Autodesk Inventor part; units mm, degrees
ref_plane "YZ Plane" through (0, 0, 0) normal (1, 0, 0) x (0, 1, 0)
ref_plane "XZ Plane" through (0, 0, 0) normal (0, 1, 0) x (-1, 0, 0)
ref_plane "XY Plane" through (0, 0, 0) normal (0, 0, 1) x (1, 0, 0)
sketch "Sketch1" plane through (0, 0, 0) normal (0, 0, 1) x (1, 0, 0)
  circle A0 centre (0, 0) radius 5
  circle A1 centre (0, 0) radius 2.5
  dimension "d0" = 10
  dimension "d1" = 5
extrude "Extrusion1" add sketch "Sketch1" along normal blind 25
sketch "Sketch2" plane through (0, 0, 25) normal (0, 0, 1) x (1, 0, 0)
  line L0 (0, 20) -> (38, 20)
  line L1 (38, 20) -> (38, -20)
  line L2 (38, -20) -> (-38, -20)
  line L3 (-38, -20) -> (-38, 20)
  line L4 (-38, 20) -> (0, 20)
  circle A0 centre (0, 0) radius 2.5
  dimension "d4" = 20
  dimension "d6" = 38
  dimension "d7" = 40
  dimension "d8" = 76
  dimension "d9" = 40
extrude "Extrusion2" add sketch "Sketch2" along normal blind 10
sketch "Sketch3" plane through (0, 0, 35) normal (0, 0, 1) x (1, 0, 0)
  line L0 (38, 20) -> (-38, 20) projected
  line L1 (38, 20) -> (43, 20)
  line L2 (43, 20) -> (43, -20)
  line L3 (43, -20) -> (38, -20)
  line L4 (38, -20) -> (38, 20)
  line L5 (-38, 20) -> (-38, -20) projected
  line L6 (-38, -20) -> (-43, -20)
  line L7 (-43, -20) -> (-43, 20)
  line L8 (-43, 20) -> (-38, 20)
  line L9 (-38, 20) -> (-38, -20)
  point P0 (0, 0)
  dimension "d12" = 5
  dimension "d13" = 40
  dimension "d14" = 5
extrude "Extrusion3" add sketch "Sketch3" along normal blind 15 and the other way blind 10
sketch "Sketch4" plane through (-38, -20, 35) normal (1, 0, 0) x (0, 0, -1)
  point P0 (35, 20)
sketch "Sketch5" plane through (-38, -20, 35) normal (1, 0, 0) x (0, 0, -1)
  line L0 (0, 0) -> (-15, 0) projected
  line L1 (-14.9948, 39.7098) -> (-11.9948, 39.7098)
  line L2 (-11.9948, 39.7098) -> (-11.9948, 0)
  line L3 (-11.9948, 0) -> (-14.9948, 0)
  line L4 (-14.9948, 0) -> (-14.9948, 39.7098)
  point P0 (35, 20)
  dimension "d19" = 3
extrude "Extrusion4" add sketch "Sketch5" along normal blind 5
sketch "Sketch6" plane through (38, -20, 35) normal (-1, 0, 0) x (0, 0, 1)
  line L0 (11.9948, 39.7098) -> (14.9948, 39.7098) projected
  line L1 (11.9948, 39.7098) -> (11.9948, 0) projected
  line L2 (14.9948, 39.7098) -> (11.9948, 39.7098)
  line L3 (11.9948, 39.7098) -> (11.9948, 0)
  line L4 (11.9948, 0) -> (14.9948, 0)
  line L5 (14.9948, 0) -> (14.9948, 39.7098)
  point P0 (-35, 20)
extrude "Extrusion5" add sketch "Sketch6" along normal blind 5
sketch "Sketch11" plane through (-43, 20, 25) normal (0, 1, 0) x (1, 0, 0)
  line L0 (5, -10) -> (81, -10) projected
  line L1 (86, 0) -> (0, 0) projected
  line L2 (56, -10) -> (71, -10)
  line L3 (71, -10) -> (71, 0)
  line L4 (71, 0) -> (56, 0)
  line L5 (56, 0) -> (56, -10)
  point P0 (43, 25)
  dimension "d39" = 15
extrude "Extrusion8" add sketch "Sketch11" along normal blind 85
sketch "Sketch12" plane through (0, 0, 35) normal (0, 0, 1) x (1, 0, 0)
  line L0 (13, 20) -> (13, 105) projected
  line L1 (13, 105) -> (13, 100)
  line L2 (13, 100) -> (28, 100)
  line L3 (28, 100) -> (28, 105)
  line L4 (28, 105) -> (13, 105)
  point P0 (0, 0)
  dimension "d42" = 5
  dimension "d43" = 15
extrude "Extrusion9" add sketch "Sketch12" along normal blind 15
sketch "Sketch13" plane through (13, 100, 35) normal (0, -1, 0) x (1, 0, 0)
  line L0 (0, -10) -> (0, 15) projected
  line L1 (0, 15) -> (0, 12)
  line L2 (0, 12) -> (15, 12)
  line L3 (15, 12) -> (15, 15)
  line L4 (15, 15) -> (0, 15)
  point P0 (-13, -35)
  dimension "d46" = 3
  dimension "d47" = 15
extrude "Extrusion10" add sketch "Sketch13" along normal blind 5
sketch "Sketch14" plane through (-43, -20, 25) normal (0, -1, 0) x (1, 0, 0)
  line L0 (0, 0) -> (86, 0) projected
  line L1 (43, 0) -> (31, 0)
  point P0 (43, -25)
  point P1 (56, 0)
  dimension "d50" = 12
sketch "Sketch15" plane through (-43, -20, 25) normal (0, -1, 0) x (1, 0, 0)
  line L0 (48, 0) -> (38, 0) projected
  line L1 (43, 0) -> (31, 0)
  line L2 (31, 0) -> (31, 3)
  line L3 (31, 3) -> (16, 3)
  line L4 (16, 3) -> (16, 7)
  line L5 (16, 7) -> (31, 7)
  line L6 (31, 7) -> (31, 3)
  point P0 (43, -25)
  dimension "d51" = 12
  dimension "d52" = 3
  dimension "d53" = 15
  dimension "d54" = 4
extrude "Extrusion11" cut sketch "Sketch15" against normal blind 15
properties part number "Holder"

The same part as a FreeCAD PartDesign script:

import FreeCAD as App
import Part
import Sketcher


def add_polygon(sketch, points):
    """Adds a closed chain of lines whose ends are joined by coincident constraints."""
    first, n = sketch.GeometryCount, len(points)
    for a, b in zip(points, points[1:] + points[:1]):
        sketch.addGeometry(Part.LineSegment(App.Vector(*a, 0), App.Vector(*b, 0)), False)
    for i in range(n):
        sketch.addConstraint(Sketcher.Constraint("Coincident", first + i, 2, first + (i + 1) % n, 1))

doc = App.newDocument("Part")
params = doc.addObject("Spreadsheet::Sheet", "Params")
for row, (alias, value) in enumerate([
    ("sketch1_diameter", "10 mm"),
    ("sketch1_diameter2", "5 mm"),
    ("pad1_length", "25 mm"),
    ("sketch2_width", "76 mm"),
    ("sketch2_height", "40 mm"),
    ("sketch2_diameter", "5 mm"),
    ("pad2_length", "10 mm"),
    ("sketch3_width", "5 mm"),
    ("sketch3_height", "40 mm"),
    ("pad3_length", "15 mm"),
    ("pad3_length2", "10 mm"),
    ("sketch4_height", "3 mm"),
    ("pad4_length", "5 mm"),
    ("sketch5_height", "3 mm"),
    ("pad5_length", "5 mm"),
    ("sketch6_width", "15 mm"),
    ("sketch6_height", "10 mm"),
    ("pad6_length", "85 mm"),
    ("sketch7_width", "15 mm"),
    ("sketch7_height", "5 mm"),
    ("pad7_length", "15 mm"),
    ("sketch8_width", "15 mm"),
    ("sketch8_height", "3 mm"),
    ("pad8_length", "5 mm"),
    ("sketch9_width", "15 mm"),
    ("sketch9_height", "4 mm"),
    ("pocket1_length", "15 mm"),
], start=1):
    params.set(f"A{row}", alias)
    params.set(f"B{row}", "=" + value)
    params.setAlias(f"B{row}", alias)

body = doc.addObject("PartDesign::Body", "Body")

# Sketch on XY plane
sketch1 = body.newObject("Sketcher::SketchObject", "Sketch")
sketch1.AttachmentSupport = (doc.getObject("XY_Plane"), [""])
sketch1.MapMode = "FlatFace"
sketch1.addGeometry(Part.Circle(App.Vector(0, 0, 0), App.Vector(0, 0, 1), 5), False)
sketch1.addGeometry(Part.Circle(App.Vector(0, 0, 0), App.Vector(0, 0, 1), 2.5), False)
sketch1.addConstraint(Sketcher.Constraint("Coincident", 0, 3, -1, 1))
sketch1.addConstraint(Sketcher.Constraint("Coincident", 1, 3, -1, 1))
sketch1.addConstraint(Sketcher.Constraint("Diameter", 0, 10.0))
sketch1.addConstraint(Sketcher.Constraint("Diameter", 1, 5.0))
sketch1.setExpression("Constraints[2]", "Params.sketch1_diameter")
sketch1.setExpression("Constraints[3]", "Params.sketch1_diameter2")
pad1 = body.newObject("PartDesign::Pad", "Pad")
pad1.Profile = sketch1
pad1.setExpression("Length", "Params.pad1_length")

# Sketch on XY plane
sketch2 = body.newObject("Sketcher::SketchObject", "Sketch001")
sketch2.AttachmentSupport = (doc.getObject("XY_Plane"), [""])
sketch2.MapMode = "FlatFace"
sketch2.AttachmentOffset = App.Placement(App.Vector(0, 0, 25), App.Rotation())
add_polygon(sketch2, [(38, 20), (-38, 20), (-38, -20), (38, -20)])  # lines 0-3
sketch2.addGeometry(Part.Circle(App.Vector(0, 0, 0), App.Vector(0, 0, 1), 2.5), False)  # 4
sketch2.addConstraint(Sketcher.Constraint("Horizontal", 0))
sketch2.addConstraint(Sketcher.Constraint("Vertical", 1))
sketch2.addConstraint(Sketcher.Constraint("Horizontal", 2))
sketch2.addConstraint(Sketcher.Constraint("Vertical", 3))
sketch2.addConstraint(Sketcher.Constraint("Coincident", 4, 3, -1, 1))
sketch2.addConstraint(Sketcher.Constraint("Symmetric", 0, 2, 2, 2, -1, 1))
sketch2.addConstraint(Sketcher.Constraint("DistanceX", 0, 2, 0, 1, 76.0))
sketch2.addConstraint(Sketcher.Constraint("DistanceY", 1, 2, 1, 1, 40.0))
sketch2.addConstraint(Sketcher.Constraint("Diameter", 4, 5.0))
sketch2.setExpression("Constraints[10]", "Params.sketch2_width")
sketch2.setExpression("Constraints[11]", "Params.sketch2_height")
sketch2.setExpression("Constraints[12]", "Params.sketch2_diameter")
pad2 = body.newObject("PartDesign::Pad", "Pad001")
pad2.Profile = sketch2
pad2.setExpression("Length", "Params.pad2_length")

# Sketch on XY plane
sketch3 = body.newObject("Sketcher::SketchObject", "Sketch002")
sketch3.AttachmentSupport = (doc.getObject("XY_Plane"), [""])
sketch3.MapMode = "FlatFace"
sketch3.AttachmentOffset = App.Placement(App.Vector(0, 0, 35), App.Rotation())
add_polygon(sketch3, [(-38, -20), (-38, 20), (-43, 20), (-43, -20)])  # lines 0-3
add_polygon(sketch3, [(43, 20), (38, 20), (38, -20), (43, -20)])  # lines 4-7
sketch3.addConstraint(Sketcher.Constraint("Vertical", 0))
sketch3.addConstraint(Sketcher.Constraint("Horizontal", 1))
sketch3.addConstraint(Sketcher.Constraint("Vertical", 2))
sketch3.addConstraint(Sketcher.Constraint("Horizontal", 3))
sketch3.addConstraint(Sketcher.Constraint("Horizontal", 4))
sketch3.addConstraint(Sketcher.Constraint("Vertical", 5))
sketch3.addConstraint(Sketcher.Constraint("Horizontal", 6))
sketch3.addConstraint(Sketcher.Constraint("Vertical", 7))
sketch3.addConstraint(Sketcher.Constraint("Symmetric", 3, 2, 4, 2, -1, 1))
sketch3.addConstraint(Sketcher.Constraint("Symmetric", 1, 2, 6, 2, -1, 1))
sketch3.addConstraint(Sketcher.Constraint("Horizontal", 1, 2, 4, 2))
sketch3.addConstraint(Sketcher.Constraint("DistanceX", 1, 2, 1, 1, 5.0))
sketch3.addConstraint(Sketcher.Constraint("DistanceY", 0, 1, 0, 2, 40.0))
sketch3.addConstraint(Sketcher.Constraint("DistanceX", 0, 2, -1, 1, 38.0))
sketch3.setExpression("Constraints[19]", "Params.sketch3_width")
sketch3.setExpression("Constraints[20]", "Params.sketch3_height")
pad3 = body.newObject("PartDesign::Pad", "Pad002")
pad3.Profile = sketch3
pad3.Type = "TwoLengths"
pad3.setExpression("Length", "Params.pad3_length")
pad3.setExpression("Length2", "Params.pad3_length2")

# Sketch on YZ plane
sketch4 = body.newObject("Sketcher::SketchObject", "Sketch003")
sketch4.AttachmentSupport = (doc.getObject("YZ_Plane"), [""])
sketch4.MapMode = "FlatFace"
sketch4.AttachmentOffset = App.Placement(App.Vector(0, 0, -38), App.Rotation())
add_polygon(sketch4, [(-20, 50), (-20, 47), (19.7, 47), (19.7, 50)])  # lines 0-3
sketch4.addConstraint(Sketcher.Constraint("Vertical", 0))
sketch4.addConstraint(Sketcher.Constraint("Horizontal", 1))
sketch4.addConstraint(Sketcher.Constraint("Vertical", 2))
sketch4.addConstraint(Sketcher.Constraint("Horizontal", 3))
sketch4.addConstraint(Sketcher.Constraint("DistanceY", 0, 2, 0, 1, 3.0))
sketch4.addConstraint(Sketcher.Constraint("DistanceX", 0, 2, -1, 1, 20.0))
sketch4.addConstraint(Sketcher.Constraint("DistanceX", 1, 1, 1, 2, 39.7098))
sketch4.addConstraint(Sketcher.Constraint("DistanceY", -1, 1, 0, 2, 46.9948))
sketch4.setExpression("Constraints[8]", "Params.sketch4_height")
pad4 = body.newObject("PartDesign::Pad", "Pad003")
pad4.Profile = sketch4
pad4.setExpression("Length", "Params.pad4_length")

# Sketch on YZ plane
sketch5 = body.newObject("Sketcher::SketchObject", "Sketch004")
sketch5.AttachmentSupport = (doc.getObject("YZ_Plane"), [""])
sketch5.MapMode = "FlatFace"
sketch5.AttachmentOffset = App.Placement(App.Vector(0, 0, 38), App.Rotation())
add_polygon(sketch5, [(19.7, 50), (19.7, 47), (-20, 47), (-20, 50)])  # lines 0-3
sketch5.addConstraint(Sketcher.Constraint("Vertical", 0))
sketch5.addConstraint(Sketcher.Constraint("Horizontal", 1))
sketch5.addConstraint(Sketcher.Constraint("Vertical", 2))
sketch5.addConstraint(Sketcher.Constraint("Horizontal", 3))
sketch5.addConstraint(Sketcher.Constraint("DistanceY", 0, 2, 0, 1, 3.0))
sketch5.addConstraint(Sketcher.Constraint("DistanceX", 1, 2, -1, 1, 20.0))
sketch5.addConstraint(Sketcher.Constraint("DistanceX", 1, 2, 1, 1, 39.7098))
sketch5.addConstraint(Sketcher.Constraint("DistanceY", -1, 1, 0, 2, 46.9948))
sketch5.setExpression("Constraints[8]", "Params.sketch5_height")
pad5 = body.newObject("PartDesign::Pad", "Pad004")
pad5.Profile = sketch5
pad5.setExpression("Length", "Params.pad5_length")
pad5.Reversed = True

# Sketch on XZ plane
sketch6 = body.newObject("Sketcher::SketchObject", "Sketch005")
sketch6.AttachmentSupport = (doc.getObject("XZ_Plane"), [""])
sketch6.MapMode = "FlatFace"
sketch6.AttachmentOffset = App.Placement(App.Vector(0, 0, -20), App.Rotation())
add_polygon(sketch6, [(13, 25), (13, 35), (28, 35), (28, 25)])  # lines 0-3
sketch6.addConstraint(Sketcher.Constraint("Vertical", 0))
sketch6.addConstraint(Sketcher.Constraint("Horizontal", 1))
sketch6.addConstraint(Sketcher.Constraint("Vertical", 2))
sketch6.addConstraint(Sketcher.Constraint("Horizontal", 3))
sketch6.addConstraint(Sketcher.Constraint("DistanceX", 1, 1, 1, 2, 15.0))
sketch6.addConstraint(Sketcher.Constraint("DistanceY", 0, 1, 0, 2, 10.0))
sketch6.addConstraint(Sketcher.Constraint("DistanceX", -1, 1, 0, 2, 13.0))
sketch6.addConstraint(Sketcher.Constraint("DistanceY", -1, 1, 0, 2, 35.0))
sketch6.setExpression("Constraints[8]", "Params.sketch6_width")
sketch6.setExpression("Constraints[9]", "Params.sketch6_height")
pad6 = body.newObject("PartDesign::Pad", "Pad005")
pad6.Profile = sketch6
pad6.setExpression("Length", "Params.pad6_length")
pad6.Reversed = True

# Sketch on XY plane
sketch7 = body.newObject("Sketcher::SketchObject", "Sketch006")
sketch7.AttachmentSupport = (doc.getObject("XY_Plane"), [""])
sketch7.MapMode = "FlatFace"
sketch7.AttachmentOffset = App.Placement(App.Vector(0, 0, 35), App.Rotation())
add_polygon(sketch7, [(13, 105), (13, 100), (28, 100), (28, 105)])  # lines 0-3
sketch7.addConstraint(Sketcher.Constraint("Vertical", 0))
sketch7.addConstraint(Sketcher.Constraint("Horizontal", 1))
sketch7.addConstraint(Sketcher.Constraint("Vertical", 2))
sketch7.addConstraint(Sketcher.Constraint("Horizontal", 3))
sketch7.addConstraint(Sketcher.Constraint("DistanceX", 1, 1, 1, 2, 15.0))
sketch7.addConstraint(Sketcher.Constraint("DistanceY", 0, 2, 0, 1, 5.0))
sketch7.addConstraint(Sketcher.Constraint("DistanceX", -1, 1, 0, 2, 13.0))
sketch7.addConstraint(Sketcher.Constraint("DistanceY", -1, 1, 0, 2, 100.0))
sketch7.setExpression("Constraints[8]", "Params.sketch7_width")
sketch7.setExpression("Constraints[9]", "Params.sketch7_height")
pad7 = body.newObject("PartDesign::Pad", "Pad006")
pad7.Profile = sketch7
pad7.setExpression("Length", "Params.pad7_length")

# Sketch on XZ plane
sketch8 = body.newObject("Sketcher::SketchObject", "Sketch007")
sketch8.AttachmentSupport = (doc.getObject("XZ_Plane"), [""])
sketch8.MapMode = "FlatFace"
sketch8.AttachmentOffset = App.Placement(App.Vector(0, 0, -100), App.Rotation())
add_polygon(sketch8, [(13, 50), (13, 47), (28, 47), (28, 50)])  # lines 0-3
sketch8.addConstraint(Sketcher.Constraint("Vertical", 0))
sketch8.addConstraint(Sketcher.Constraint("Horizontal", 1))
sketch8.addConstraint(Sketcher.Constraint("Vertical", 2))
sketch8.addConstraint(Sketcher.Constraint("Horizontal", 3))
sketch8.addConstraint(Sketcher.Constraint("DistanceX", 1, 1, 1, 2, 15.0))
sketch8.addConstraint(Sketcher.Constraint("DistanceY", 0, 2, 0, 1, 3.0))
sketch8.addConstraint(Sketcher.Constraint("DistanceX", -1, 1, 0, 2, 13.0))
sketch8.addConstraint(Sketcher.Constraint("DistanceY", -1, 1, 0, 2, 47.0))
sketch8.setExpression("Constraints[8]", "Params.sketch8_width")
sketch8.setExpression("Constraints[9]", "Params.sketch8_height")
pad8 = body.newObject("PartDesign::Pad", "Pad007")
pad8.Profile = sketch8
pad8.setExpression("Length", "Params.pad8_length")

# Sketch on XZ plane
sketch9 = body.newObject("Sketcher::SketchObject", "Sketch008")
sketch9.AttachmentSupport = (doc.getObject("XZ_Plane"), [""])
sketch9.MapMode = "FlatFace"
sketch9.AttachmentOffset = App.Placement(App.Vector(0, 0, 20), App.Rotation())
add_polygon(sketch9, [(-27, 28), (-12, 28), (-12, 32), (-27, 32)])  # lines 0-3
sketch9.addConstraint(Sketcher.Constraint("Horizontal", 0))
sketch9.addConstraint(Sketcher.Constraint("Vertical", 1))
sketch9.addConstraint(Sketcher.Constraint("Horizontal", 2))
sketch9.addConstraint(Sketcher.Constraint("Vertical", 3))
sketch9.addConstraint(Sketcher.Constraint("DistanceX", 0, 1, 0, 2, 15.0))
sketch9.addConstraint(Sketcher.Constraint("DistanceY", 1, 1, 1, 2, 4.0))
sketch9.addConstraint(Sketcher.Constraint("DistanceX", 0, 2, -1, 1, 12.0))
sketch9.addConstraint(Sketcher.Constraint("DistanceY", -1, 1, 0, 2, 28.0))
sketch9.setExpression("Constraints[8]", "Params.sketch9_width")
sketch9.setExpression("Constraints[9]", "Params.sketch9_height")
pocket1 = body.newObject("PartDesign::Pocket", "Pocket")
pocket1.Profile = sketch9
pocket1.setExpression("Length", "Params.pocket1_length")

doc.recompute()
